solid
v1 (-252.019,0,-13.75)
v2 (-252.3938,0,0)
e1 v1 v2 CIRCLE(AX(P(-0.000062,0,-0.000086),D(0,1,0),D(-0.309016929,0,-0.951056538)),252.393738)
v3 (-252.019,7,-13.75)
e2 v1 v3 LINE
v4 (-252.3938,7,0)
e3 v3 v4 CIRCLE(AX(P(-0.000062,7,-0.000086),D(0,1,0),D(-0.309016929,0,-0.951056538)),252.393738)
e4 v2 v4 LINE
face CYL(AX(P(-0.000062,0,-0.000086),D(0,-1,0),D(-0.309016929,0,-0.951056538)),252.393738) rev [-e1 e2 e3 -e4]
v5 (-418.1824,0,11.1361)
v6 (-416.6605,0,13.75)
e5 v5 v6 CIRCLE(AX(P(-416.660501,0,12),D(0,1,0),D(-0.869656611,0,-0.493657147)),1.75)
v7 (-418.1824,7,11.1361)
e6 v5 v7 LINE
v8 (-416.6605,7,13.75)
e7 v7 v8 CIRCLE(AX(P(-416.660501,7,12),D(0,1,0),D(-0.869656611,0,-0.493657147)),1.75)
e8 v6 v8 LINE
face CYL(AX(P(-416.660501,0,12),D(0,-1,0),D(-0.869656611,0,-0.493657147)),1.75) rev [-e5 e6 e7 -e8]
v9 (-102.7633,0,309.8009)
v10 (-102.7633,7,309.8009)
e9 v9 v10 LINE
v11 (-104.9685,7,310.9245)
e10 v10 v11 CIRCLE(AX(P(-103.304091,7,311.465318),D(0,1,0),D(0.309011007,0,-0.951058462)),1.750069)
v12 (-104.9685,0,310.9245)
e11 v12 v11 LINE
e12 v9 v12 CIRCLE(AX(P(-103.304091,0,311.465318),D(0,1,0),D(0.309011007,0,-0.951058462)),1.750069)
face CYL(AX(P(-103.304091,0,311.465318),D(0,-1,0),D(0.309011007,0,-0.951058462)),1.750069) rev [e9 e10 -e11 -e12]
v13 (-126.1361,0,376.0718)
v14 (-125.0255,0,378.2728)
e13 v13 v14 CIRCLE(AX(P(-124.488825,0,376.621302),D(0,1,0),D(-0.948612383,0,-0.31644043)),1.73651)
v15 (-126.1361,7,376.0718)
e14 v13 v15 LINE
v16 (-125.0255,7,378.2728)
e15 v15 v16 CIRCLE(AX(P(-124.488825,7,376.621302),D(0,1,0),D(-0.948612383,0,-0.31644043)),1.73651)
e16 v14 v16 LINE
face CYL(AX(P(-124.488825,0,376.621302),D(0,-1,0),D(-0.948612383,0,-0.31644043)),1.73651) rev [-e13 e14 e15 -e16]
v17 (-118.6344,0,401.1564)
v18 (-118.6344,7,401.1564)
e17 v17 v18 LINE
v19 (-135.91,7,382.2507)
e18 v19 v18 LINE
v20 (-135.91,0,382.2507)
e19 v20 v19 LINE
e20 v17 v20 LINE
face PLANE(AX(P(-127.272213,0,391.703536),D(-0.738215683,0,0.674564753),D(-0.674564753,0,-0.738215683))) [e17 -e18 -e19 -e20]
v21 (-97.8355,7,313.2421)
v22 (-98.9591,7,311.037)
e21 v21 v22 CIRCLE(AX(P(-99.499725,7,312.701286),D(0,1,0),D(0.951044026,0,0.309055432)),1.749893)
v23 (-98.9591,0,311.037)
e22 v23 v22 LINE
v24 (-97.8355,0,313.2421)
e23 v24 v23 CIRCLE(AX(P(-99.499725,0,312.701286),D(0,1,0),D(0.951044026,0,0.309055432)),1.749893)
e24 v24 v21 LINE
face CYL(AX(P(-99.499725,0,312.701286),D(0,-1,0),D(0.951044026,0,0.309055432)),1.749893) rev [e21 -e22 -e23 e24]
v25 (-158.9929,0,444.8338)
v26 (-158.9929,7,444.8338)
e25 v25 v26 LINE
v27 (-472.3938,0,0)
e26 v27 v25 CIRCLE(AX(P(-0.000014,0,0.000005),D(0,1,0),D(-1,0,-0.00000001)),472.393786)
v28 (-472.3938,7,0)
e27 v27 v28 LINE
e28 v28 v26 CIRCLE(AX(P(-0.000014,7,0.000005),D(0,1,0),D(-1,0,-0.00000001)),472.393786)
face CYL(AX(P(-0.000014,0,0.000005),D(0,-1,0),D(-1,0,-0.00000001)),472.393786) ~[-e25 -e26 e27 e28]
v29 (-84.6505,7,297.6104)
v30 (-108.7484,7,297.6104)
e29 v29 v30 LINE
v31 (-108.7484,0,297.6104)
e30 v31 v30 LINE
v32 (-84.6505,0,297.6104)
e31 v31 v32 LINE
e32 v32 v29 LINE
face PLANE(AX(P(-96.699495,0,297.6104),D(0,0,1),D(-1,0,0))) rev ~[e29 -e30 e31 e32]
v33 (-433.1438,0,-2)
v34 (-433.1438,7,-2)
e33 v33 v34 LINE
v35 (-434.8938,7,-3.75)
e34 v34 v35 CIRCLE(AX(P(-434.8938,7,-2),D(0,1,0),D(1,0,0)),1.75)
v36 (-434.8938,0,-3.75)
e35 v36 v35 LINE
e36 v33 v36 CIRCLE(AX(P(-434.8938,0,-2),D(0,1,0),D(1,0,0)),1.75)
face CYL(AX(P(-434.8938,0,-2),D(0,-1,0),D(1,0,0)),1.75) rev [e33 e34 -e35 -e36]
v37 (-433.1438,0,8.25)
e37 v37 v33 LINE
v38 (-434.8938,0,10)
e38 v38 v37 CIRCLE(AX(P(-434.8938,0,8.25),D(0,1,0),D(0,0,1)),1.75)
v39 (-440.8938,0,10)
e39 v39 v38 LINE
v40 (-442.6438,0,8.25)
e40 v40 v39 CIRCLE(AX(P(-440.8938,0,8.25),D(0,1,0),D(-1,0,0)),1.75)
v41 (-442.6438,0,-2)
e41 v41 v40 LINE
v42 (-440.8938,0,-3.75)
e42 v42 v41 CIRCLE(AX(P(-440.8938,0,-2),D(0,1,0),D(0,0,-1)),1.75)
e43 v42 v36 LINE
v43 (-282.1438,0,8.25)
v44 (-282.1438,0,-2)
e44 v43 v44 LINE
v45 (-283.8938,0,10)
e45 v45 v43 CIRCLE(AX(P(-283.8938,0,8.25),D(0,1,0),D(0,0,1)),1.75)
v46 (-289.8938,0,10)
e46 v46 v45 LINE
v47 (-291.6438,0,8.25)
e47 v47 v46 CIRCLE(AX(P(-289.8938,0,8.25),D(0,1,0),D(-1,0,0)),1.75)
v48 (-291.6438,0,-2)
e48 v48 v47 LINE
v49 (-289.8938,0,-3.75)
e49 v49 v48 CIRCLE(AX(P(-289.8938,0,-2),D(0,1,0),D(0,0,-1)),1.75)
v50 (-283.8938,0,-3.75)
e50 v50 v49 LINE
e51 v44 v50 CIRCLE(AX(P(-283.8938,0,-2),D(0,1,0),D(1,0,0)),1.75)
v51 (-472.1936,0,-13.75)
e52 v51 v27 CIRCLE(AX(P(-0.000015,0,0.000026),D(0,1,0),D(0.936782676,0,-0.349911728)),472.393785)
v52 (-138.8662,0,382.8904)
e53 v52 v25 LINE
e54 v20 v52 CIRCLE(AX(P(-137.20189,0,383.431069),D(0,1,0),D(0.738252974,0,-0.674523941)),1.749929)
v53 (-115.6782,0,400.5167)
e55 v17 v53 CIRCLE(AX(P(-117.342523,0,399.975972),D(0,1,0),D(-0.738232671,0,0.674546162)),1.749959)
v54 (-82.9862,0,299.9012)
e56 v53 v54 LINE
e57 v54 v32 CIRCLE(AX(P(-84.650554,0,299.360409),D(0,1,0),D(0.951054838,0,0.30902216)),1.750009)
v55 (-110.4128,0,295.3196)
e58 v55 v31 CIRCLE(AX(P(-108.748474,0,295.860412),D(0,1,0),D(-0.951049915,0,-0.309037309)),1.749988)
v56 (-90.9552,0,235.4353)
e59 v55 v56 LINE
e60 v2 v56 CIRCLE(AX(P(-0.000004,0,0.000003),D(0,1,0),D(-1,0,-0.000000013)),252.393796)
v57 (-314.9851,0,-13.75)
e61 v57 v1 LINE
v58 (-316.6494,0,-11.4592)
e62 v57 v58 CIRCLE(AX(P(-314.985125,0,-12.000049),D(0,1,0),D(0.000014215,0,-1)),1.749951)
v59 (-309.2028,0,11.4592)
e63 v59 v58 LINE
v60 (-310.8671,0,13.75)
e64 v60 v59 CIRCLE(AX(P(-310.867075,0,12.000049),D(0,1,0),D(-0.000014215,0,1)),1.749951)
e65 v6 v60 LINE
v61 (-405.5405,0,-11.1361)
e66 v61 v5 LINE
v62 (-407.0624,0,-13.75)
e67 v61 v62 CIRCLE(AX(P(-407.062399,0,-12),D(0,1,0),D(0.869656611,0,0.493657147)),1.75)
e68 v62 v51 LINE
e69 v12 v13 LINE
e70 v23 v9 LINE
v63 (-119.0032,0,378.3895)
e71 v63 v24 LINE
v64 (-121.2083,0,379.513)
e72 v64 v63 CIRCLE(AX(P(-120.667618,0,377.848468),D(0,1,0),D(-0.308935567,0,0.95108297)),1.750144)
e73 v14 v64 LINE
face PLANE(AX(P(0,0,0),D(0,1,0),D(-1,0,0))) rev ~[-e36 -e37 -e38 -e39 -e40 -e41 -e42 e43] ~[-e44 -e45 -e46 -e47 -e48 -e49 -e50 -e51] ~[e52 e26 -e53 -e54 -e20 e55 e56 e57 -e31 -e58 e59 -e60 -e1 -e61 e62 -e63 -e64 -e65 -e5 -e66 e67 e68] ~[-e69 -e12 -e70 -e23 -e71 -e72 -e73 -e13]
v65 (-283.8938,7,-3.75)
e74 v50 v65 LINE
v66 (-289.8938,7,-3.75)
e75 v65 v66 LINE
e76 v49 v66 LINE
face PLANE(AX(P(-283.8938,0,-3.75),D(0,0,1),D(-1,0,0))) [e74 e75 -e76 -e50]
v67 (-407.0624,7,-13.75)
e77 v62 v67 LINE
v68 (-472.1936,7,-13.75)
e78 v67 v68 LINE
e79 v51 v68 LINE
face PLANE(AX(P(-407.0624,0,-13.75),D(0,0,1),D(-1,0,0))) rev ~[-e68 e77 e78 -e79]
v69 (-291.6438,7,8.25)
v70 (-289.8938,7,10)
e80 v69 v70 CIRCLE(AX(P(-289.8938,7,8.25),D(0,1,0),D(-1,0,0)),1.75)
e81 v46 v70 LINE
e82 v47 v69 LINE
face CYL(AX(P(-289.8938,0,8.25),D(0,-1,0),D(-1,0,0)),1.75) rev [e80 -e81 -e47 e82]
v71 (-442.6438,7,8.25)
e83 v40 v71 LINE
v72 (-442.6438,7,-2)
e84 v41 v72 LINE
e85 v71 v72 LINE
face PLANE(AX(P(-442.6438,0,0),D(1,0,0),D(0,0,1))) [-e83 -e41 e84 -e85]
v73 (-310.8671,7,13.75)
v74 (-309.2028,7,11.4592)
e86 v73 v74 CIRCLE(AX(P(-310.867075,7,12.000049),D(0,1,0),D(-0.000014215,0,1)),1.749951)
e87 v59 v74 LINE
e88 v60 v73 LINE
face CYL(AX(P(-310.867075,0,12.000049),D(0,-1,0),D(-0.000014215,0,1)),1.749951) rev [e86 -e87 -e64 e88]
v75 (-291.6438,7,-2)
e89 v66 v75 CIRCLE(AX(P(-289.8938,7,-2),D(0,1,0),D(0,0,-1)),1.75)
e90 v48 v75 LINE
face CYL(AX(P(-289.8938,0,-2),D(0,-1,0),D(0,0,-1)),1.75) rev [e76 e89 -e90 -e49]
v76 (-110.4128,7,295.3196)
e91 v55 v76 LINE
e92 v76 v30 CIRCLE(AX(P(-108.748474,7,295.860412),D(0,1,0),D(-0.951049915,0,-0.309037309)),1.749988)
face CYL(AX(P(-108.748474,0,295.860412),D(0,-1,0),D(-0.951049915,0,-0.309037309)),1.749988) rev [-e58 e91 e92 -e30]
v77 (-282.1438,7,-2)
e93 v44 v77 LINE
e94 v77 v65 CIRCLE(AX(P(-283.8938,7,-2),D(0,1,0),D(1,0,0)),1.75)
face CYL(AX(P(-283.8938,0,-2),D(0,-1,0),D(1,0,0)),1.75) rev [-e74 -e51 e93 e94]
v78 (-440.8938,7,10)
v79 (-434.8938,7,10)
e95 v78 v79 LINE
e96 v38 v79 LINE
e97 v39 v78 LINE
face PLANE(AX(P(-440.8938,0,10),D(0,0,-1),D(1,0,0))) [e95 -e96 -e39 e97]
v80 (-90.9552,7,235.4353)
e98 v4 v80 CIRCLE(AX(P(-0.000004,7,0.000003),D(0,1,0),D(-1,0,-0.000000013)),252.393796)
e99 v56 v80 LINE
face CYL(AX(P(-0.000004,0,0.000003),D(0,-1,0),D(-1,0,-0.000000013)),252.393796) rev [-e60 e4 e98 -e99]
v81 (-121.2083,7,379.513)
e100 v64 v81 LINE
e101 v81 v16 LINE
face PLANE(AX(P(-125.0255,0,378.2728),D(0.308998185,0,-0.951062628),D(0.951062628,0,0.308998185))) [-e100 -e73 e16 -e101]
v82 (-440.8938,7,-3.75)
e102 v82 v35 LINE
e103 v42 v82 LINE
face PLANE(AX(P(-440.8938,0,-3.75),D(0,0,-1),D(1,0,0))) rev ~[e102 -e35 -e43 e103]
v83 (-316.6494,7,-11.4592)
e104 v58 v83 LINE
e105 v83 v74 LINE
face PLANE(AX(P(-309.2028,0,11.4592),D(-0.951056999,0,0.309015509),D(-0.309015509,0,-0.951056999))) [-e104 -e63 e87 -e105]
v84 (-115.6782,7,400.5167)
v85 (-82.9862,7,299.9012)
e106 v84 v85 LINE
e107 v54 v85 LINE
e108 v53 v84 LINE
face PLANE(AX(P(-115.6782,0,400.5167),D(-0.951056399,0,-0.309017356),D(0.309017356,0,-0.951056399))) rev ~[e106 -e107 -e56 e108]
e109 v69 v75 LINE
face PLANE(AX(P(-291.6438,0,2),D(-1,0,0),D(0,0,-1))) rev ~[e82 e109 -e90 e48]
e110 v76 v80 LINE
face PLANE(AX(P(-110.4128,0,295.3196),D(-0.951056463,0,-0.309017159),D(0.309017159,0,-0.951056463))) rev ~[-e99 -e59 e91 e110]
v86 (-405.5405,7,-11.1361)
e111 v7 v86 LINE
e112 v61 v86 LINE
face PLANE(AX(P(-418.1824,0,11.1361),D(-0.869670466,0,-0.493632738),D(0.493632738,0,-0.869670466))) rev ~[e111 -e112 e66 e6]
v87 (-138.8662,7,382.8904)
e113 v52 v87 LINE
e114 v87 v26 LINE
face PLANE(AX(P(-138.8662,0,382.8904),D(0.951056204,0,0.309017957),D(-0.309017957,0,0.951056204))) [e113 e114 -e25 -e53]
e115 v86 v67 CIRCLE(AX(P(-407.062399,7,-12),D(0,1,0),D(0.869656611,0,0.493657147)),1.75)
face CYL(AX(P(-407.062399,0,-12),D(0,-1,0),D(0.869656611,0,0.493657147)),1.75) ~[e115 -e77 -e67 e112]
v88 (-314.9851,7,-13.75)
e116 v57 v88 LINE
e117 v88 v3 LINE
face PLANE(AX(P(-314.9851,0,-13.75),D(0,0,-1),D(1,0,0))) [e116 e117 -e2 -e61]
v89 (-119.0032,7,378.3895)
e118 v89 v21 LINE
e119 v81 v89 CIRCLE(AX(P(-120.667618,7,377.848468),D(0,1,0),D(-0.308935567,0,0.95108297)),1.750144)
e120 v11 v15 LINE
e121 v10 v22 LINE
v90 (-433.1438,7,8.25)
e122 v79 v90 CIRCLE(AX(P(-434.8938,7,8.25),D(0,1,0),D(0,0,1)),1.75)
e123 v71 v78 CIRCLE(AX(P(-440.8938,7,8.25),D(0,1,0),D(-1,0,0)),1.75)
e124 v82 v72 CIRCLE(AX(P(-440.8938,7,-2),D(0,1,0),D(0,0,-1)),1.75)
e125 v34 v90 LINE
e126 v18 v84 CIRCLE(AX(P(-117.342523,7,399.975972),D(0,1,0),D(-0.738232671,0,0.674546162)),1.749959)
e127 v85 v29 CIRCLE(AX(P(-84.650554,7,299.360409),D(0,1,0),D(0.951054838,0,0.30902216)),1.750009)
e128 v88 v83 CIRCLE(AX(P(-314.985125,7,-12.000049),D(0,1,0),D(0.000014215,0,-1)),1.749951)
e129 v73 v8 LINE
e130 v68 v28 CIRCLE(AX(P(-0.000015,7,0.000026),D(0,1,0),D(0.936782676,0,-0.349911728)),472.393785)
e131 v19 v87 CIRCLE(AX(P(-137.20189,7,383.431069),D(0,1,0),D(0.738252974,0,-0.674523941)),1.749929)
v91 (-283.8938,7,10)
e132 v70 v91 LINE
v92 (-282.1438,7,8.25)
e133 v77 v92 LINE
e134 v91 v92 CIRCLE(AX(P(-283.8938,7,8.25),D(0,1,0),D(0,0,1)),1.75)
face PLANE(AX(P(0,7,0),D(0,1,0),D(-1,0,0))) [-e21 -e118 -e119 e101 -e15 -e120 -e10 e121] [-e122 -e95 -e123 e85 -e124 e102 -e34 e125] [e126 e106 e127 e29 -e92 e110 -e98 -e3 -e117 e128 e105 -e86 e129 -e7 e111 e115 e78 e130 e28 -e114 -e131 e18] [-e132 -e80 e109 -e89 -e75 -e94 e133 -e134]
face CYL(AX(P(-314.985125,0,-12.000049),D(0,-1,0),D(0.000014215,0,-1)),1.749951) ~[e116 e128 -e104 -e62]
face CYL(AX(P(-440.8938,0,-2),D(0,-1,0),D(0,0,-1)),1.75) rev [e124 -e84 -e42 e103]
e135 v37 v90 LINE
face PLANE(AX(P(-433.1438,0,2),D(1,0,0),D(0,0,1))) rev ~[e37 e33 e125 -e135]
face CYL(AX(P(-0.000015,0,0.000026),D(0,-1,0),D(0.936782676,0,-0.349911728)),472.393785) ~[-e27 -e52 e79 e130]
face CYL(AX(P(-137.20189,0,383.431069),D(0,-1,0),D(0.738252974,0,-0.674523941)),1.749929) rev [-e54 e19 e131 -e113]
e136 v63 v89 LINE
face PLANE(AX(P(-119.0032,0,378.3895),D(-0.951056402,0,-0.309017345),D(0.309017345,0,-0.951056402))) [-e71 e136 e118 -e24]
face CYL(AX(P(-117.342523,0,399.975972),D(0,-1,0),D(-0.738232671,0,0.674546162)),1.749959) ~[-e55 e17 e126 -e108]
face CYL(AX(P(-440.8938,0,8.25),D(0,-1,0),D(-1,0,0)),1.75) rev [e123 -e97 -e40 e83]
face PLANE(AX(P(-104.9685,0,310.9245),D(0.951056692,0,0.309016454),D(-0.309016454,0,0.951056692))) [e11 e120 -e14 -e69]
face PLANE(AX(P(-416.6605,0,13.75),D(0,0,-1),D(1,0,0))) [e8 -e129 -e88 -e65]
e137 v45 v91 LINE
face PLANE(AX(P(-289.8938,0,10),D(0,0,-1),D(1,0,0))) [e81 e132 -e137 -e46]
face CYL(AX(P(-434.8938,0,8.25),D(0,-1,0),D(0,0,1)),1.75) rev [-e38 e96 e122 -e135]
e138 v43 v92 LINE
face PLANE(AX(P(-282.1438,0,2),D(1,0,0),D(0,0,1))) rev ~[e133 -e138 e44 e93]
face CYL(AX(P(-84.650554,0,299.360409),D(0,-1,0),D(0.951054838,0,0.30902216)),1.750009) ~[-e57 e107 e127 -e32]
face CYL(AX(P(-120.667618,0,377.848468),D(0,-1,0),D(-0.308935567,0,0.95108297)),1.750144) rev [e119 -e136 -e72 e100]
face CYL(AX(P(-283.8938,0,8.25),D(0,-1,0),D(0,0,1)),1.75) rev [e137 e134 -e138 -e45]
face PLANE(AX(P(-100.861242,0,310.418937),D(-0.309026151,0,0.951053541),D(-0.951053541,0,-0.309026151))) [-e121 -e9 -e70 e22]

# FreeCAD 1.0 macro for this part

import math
import FreeCAD as App
import Part
import Sketcher
from FreeCAD import Vector
Q = App.Units.Quantity

doc = App.newDocument("Part")
body = doc.addObject("PartDesign::Body", "Body")

# Sketch on XZ plane
sketch1 = body.newObject("Sketcher::SketchObject", "Sketch")
sketch1.AttachmentSupport = (doc.getObject("XZ_Plane"), [""])
sketch1.MapMode = "FlatFace"
sketch1.addGeometry([
    Part.ArcOfCircle(Part.Circle(Vector(0, 0, 0), Vector(0, 0, 1), 252.4), math.radians(111), math.radians(180)),  # 0
    Part.ArcOfCircle(Part.Circle(Vector(0, 0, 0), Vector(0, 0, 1), 252.4), math.radians(180), math.radians(183.12)),  # 1
    Part.LineSegment(Vector(-252, -13.8, 0), Vector(-315, -13.8, 0)),  # 2
    Part.ArcOfCircle(Part.Circle(Vector(-315, -12, 0), Vector(0, 0, 1), 1.8), math.radians(162), math.radians(270)),  # 3
    Part.LineSegment(Vector(-316.6, -11.5, 0), Vector(-309.2, 11.5, 0)),  # 4
    Part.ArcOfCircle(Part.Circle(Vector(-310.9, 12, 0), Vector(0, 0, 1), 1.8), math.radians(-18), math.radians(90)),  # 5
    Part.LineSegment(Vector(-310.9, 13.8, 0), Vector(-416.7, 13.8, 0)),  # 6
    Part.ArcOfCircle(Part.Circle(Vector(-416.7, 12, 0), Vector(0, 0, 1), 1.8), math.radians(90), math.radians(210)),  # 7
    Part.LineSegment(Vector(-418.2, 11.1, 0), Vector(-405.5, -11.1, 0)),  # 8
    Part.ArcOfCircle(Part.Circle(Vector(-407.1, -12, 0), Vector(0, 0, 1), 1.8), math.radians(-90), math.radians(30)),  # 9
    Part.LineSegment(Vector(-407.1, -13.8, 0), Vector(-472.2, -13.8, 0)),  # 10
    Part.ArcOfCircle(Part.Circle(Vector(0, 0, 0), Vector(0, 0, 1), 472.4), math.radians(180), math.radians(181.67)),  # 11
    Part.ArcOfCircle(Part.Circle(Vector(0, 0, 0), Vector(0, 0, 1), 472.4), math.radians(110), math.radians(180)),  # 12
    Part.LineSegment(Vector(-159, 444.8, 0), Vector(-138.9, 382.9, 0)),  # 13
    Part.ArcOfCircle(Part.Circle(Vector(-137.2, 383.4, 0), Vector(0, 0, 1), 1.7), math.radians(-162), math.radians(-42)),  # 14
    Part.LineSegment(Vector(-135.9, 382.3, 0), Vector(-118.6, 401.2, 0)),  # 15
    Part.ArcOfCircle(Part.Circle(Vector(-117.3, 400, 0), Vector(0, 0, 1), 1.8), math.radians(18), math.radians(138)),  # 16
    Part.LineSegment(Vector(-115.7, 400.5, 0), Vector(-83, 299.9, 0)),  # 17
    Part.ArcOfCircle(Part.Circle(Vector(-84.7, 299.4, 0), Vector(0, 0, 1), 1.7), math.radians(-90), math.radians(18)),  # 18
    Part.LineSegment(Vector(-84.7, 297.6, 0), Vector(-108.7, 297.6, 0)),  # 19
    Part.ArcOfCircle(Part.Circle(Vector(-108.7, 295.9, 0), Vector(0, 0, 1), 1.8), math.radians(90), math.radians(198)),  # 20
    Part.LineSegment(Vector(-110.4, 295.3, 0), Vector(-91, 235.4, 0)),  # 21
    Part.LineSegment(Vector(-102.8, 309.8, 0), Vector(-99, 311, 0)),  # 22
    Part.ArcOfCircle(Part.Circle(Vector(-99.5, 312.7, 0), Vector(0, 0, 1), 1.8), math.radians(-72), math.radians(18)),  # 23
    Part.LineSegment(Vector(-97.8, 313.2, 0), Vector(-119, 378.4, 0)),  # 24
    Part.ArcOfCircle(Part.Circle(Vector(-120.7, 377.8, 0), Vector(0, 0, 1), 1.7), math.radians(18), math.radians(108)),  # 25
    Part.LineSegment(Vector(-121.2, 379.5, 0), Vector(-125, 378.3, 0)),  # 26
    Part.ArcOfCircle(Part.Circle(Vector(-124.5, 376.6, 0), Vector(0, 0, 1), 1.7), math.radians(108), math.radians(198)),  # 27
    Part.LineSegment(Vector(-126.1, 376.1, 0), Vector(-105, 310.9, 0)),  # 28
    Part.ArcOfCircle(Part.Circle(Vector(-103.3, 311.5, 0), Vector(0, 0, 1), 1.7), math.radians(-162), math.radians(-72)),  # 29
    Part.ArcOfCircle(Part.Circle(Vector(-440.9, -2, 0), Vector(0, 0, 1), 1.8), math.radians(180), math.radians(270)),  # 30
    Part.LineSegment(Vector(-440.9, -3.8, 0), Vector(-434.9, -3.8, 0)),  # 31
    Part.ArcOfCircle(Part.Circle(Vector(-434.9, -2, 0), Vector(0, 0, 1), 1.8), math.radians(-90), math.radians(0)),  # 32
    Part.LineSegment(Vector(-433.1, -2, 0), Vector(-433.1, 8.2, 0)),  # 33
    Part.ArcOfCircle(Part.Circle(Vector(-434.9, 8.2, 0), Vector(0, 0, 1), 1.8), math.radians(0), math.radians(90)),  # 34
    Part.LineSegment(Vector(-434.9, 10, 0), Vector(-440.9, 10, 0)),  # 35
    Part.ArcOfCircle(Part.Circle(Vector(-440.9, 8.2, 0), Vector(0, 0, 1), 1.8), math.radians(90), math.radians(180)),  # 36
    Part.LineSegment(Vector(-442.6, 8.2, 0), Vector(-442.6, -2, 0)),  # 37
    Part.ArcOfCircle(Part.Circle(Vector(-289.9, -2, 0), Vector(0, 0, 1), 1.8), math.radians(180), math.radians(270)),  # 38
    Part.LineSegment(Vector(-289.9, -3.8, 0), Vector(-283.9, -3.8, 0)),  # 39
    Part.ArcOfCircle(Part.Circle(Vector(-283.9, -2, 0), Vector(0, 0, 1), 1.8), math.radians(-90), math.radians(0)),  # 40
    Part.LineSegment(Vector(-282.1, -2, 0), Vector(-282.1, 8.2, 0)),  # 41
    Part.ArcOfCircle(Part.Circle(Vector(-283.9, 8.2, 0), Vector(0, 0, 1), 1.8), math.radians(0), math.radians(90)),  # 42
    Part.LineSegment(Vector(-283.9, 10, 0), Vector(-289.9, 10, 0)),  # 43
    Part.ArcOfCircle(Part.Circle(Vector(-289.9, 8.2, 0), Vector(0, 0, 1), 1.8), math.radians(90), math.radians(180)),  # 44
    Part.LineSegment(Vector(-291.6, 8.2, 0), Vector(-291.6, -2, 0)),  # 45
], False)
sketch1.addConstraint([
    Sketcher.Constraint("Tangent", 0, 2, 1, 1),
    Sketcher.Constraint("Coincident", 1, 2, 2, 1),
    Sketcher.Constraint("Tangent", 2, 2, 3, 2),
    Sketcher.Constraint("Tangent", 3, 1, 4, 1),
    Sketcher.Constraint("Tangent", 4, 2, 5, 1),
    Sketcher.Constraint("Tangent", 5, 2, 6, 1),
    Sketcher.Constraint("Tangent", 6, 2, 7, 1),
    Sketcher.Constraint("Tangent", 7, 2, 8, 1),
    Sketcher.Constraint("Tangent", 8, 2, 9, 2),
    Sketcher.Constraint("Tangent", 9, 1, 10, 1),
    Sketcher.Constraint("Coincident", 10, 2, 11, 2),
    Sketcher.Constraint("Tangent", 11, 1, 12, 2),
    Sketcher.Constraint("Coincident", 12, 1, 13, 1),
    Sketcher.Constraint("Tangent", 13, 2, 14, 1),
    Sketcher.Constraint("Tangent", 14, 2, 15, 1),
    Sketcher.Constraint("Tangent", 15, 2, 16, 2),
    Sketcher.Constraint("Tangent", 16, 1, 17, 1),
    Sketcher.Constraint("Tangent", 17, 2, 18, 2),
    Sketcher.Constraint("Tangent", 18, 1, 19, 1),
    Sketcher.Constraint("Tangent", 19, 2, 20, 1),
    Sketcher.Constraint("Tangent", 20, 2, 21, 1),
    Sketcher.Constraint("Coincident", 21, 2, 0, 1),
    Sketcher.Constraint("Tangent", 22, 2, 23, 1),
    Sketcher.Constraint("Tangent", 23, 2, 24, 1),
    Sketcher.Constraint("Tangent", 24, 2, 25, 1),
    Sketcher.Constraint("Tangent", 25, 2, 26, 1),
    Sketcher.Constraint("Tangent", 26, 2, 27, 1),
    Sketcher.Constraint("Coincident", 27, 2, 28, 1),
    Sketcher.Constraint("Tangent", 28, 2, 29, 1),
    Sketcher.Constraint("Tangent", 29, 2, 22, 1),
    Sketcher.Constraint("Tangent", 30, 2, 31, 1),
    Sketcher.Constraint("Tangent", 31, 2, 32, 1),
    Sketcher.Constraint("Tangent", 32, 2, 33, 1),
    Sketcher.Constraint("Tangent", 33, 2, 34, 1),
    Sketcher.Constraint("Tangent", 34, 2, 35, 1),
    Sketcher.Constraint("Tangent", 35, 2, 36, 1),
    Sketcher.Constraint("Tangent", 36, 2, 37, 1),
    Sketcher.Constraint("Tangent", 37, 2, 30, 1),
    Sketcher.Constraint("Tangent", 38, 2, 39, 1),
    Sketcher.Constraint("Tangent", 39, 2, 40, 1),
    Sketcher.Constraint("Tangent", 40, 2, 41, 1),
    Sketcher.Constraint("Tangent", 41, 2, 42, 1),
    Sketcher.Constraint("Tangent", 42, 2, 43, 1),
    Sketcher.Constraint("Tangent", 43, 2, 44, 1),
    Sketcher.Constraint("Tangent", 44, 2, 45, 1),
    Sketcher.Constraint("Tangent", 45, 2, 38, 1),
    Sketcher.Constraint("Horizontal", 2),
    Sketcher.Constraint("Horizontal", 6),
    Sketcher.Constraint("Horizontal", 10),
    Sketcher.Constraint("Horizontal", 19),
    Sketcher.Constraint("Horizontal", 31),
    Sketcher.Constraint("Vertical", 33),
    Sketcher.Constraint("Horizontal", 35),
    Sketcher.Constraint("Vertical", 37),
    Sketcher.Constraint("Horizontal", 39),
    Sketcher.Constraint("Vertical", 41),
    Sketcher.Constraint("Horizontal", 43),
    Sketcher.Constraint("Vertical", 45),
    Sketcher.Constraint("Coincident", 0, 3, -1, 1),
    Sketcher.Constraint("Coincident", 11, 3, -1, 1),
    Sketcher.Constraint("Equal", 0, 1),
    Sketcher.Constraint("Equal", 3, 5),
    Sketcher.Constraint("Equal", 5, 7),
    Sketcher.Constraint("Equal", 7, 9),
    Sketcher.Constraint("Equal", 11, 12),
    Sketcher.Constraint("Equal", 9, 14),
    Sketcher.Constraint("Equal", 14, 16),
    Sketcher.Constraint("Equal", 16, 18),
    Sketcher.Constraint("Equal", 18, 20),
    Sketcher.Constraint("Equal", 20, 23),
    Sketcher.Constraint("Equal", 23, 25),
    Sketcher.Constraint("Equal", 25, 29),
    Sketcher.Constraint("Equal", 29, 30),
    Sketcher.Constraint("Equal", 30, 32),
    Sketcher.Constraint("Equal", 32, 34),
    Sketcher.Constraint("Equal", 34, 36),
    Sketcher.Constraint("Equal", 36, 38),
    Sketcher.Constraint("Equal", 38, 40),
    Sketcher.Constraint("Equal", 40, 42),
    Sketcher.Constraint("Equal", 42, 44),
    Sketcher.Constraint("PointOnObject", 0, 2, -1),
    Sketcher.Constraint("PointOnObject", 11, 1, -1),
    Sketcher.Constraint("Parallel", 13, 17),
    Sketcher.Constraint("Parallel", 17, 21),
    Sketcher.Constraint("Perpendicular", 21, 22),
    Sketcher.Constraint("Perpendicular", 22, 24),
    Sketcher.Constraint("Perpendicular", 24, 26),
    Sketcher.Constraint("Perpendicular", 26, 28),
    Sketcher.Constraint("Horizontal", 3, 3, 9, 3),
    Sketcher.Constraint("Horizontal", 32, 3, 38, 3),
    Sketcher.Constraint("Horizontal", 36, 3, 42, 3),
    Sketcher.Constraint("Equal", 35, 39),
    Sketcher.Constraint("Equal", 8, 15),
    Sketcher.Constraint("Equal", 24, 28),
    Sketcher.Constraint("Radius", 3, 1.75),
    Sketcher.Constraint("DistanceY", -1, 1, 34, 2, 10.0),
    Sketcher.Constraint("Distance", 24, 68.5),
    Sketcher.Constraint("DistanceX", 31, 1, 31, 2, 6.0),
    Sketcher.Constraint("Angle", 4, Q("72 deg")),
    Sketcher.Constraint("Angle", 13, Q("-72 deg")),
    Sketcher.Constraint("Distance", 22, 4.0),
    Sketcher.Constraint("DistanceY", 3, 3, -1, 1, 12.0),
    Sketcher.Constraint("DistanceY", -1, 1, 5, 3, 12.0),
    Sketcher.Constraint("DistanceY", 30, 3, -1, 1, 2.0),
    Sketcher.Constraint("DistanceX", 23, 3, -1, 1, 99.5),
    Sketcher.Constraint("Angle", 8, Q("-60.4204 deg")),
    Sketcher.Constraint("Angle", 15, Q("47.5796 deg")),
    Sketcher.Constraint("Radius", 0, 252.3938),
    Sketcher.Constraint("Radius", 11, 472.3938),
    Sketcher.Constraint("Radius", 27, 1.7365),
    Sketcher.Constraint("DistanceX", 2, 2, 2, 1, 62.966),
    Sketcher.Constraint("DistanceX", 19, 2, 19, 1, 24.098),
    Sketcher.Constraint("DistanceX", 14, 2, -1, 1, 135.91),
    Sketcher.Constraint("Distance", 21, 62.966),
    Sketcher.Constraint("DistanceX", 6, 2, 6, 1, 105.7934),
    Sketcher.Constraint("DistanceY", -1, 1, 14, 3, 383.431),
    Sketcher.Constraint("DistanceY", -1, 1, 22, 2, 311.037),
    Sketcher.Constraint("DistanceX", 30, 3, -1, 1, 440.8938),
    Sketcher.Constraint("DistanceX", 38, 3, -1, 1, 289.8938),
])
pad1 = body.newObject("PartDesign::Pad", "Pad")
pad1.Profile = sketch1
pad1.Length = 7
pad1.Reversed = True

doc.recompute()
